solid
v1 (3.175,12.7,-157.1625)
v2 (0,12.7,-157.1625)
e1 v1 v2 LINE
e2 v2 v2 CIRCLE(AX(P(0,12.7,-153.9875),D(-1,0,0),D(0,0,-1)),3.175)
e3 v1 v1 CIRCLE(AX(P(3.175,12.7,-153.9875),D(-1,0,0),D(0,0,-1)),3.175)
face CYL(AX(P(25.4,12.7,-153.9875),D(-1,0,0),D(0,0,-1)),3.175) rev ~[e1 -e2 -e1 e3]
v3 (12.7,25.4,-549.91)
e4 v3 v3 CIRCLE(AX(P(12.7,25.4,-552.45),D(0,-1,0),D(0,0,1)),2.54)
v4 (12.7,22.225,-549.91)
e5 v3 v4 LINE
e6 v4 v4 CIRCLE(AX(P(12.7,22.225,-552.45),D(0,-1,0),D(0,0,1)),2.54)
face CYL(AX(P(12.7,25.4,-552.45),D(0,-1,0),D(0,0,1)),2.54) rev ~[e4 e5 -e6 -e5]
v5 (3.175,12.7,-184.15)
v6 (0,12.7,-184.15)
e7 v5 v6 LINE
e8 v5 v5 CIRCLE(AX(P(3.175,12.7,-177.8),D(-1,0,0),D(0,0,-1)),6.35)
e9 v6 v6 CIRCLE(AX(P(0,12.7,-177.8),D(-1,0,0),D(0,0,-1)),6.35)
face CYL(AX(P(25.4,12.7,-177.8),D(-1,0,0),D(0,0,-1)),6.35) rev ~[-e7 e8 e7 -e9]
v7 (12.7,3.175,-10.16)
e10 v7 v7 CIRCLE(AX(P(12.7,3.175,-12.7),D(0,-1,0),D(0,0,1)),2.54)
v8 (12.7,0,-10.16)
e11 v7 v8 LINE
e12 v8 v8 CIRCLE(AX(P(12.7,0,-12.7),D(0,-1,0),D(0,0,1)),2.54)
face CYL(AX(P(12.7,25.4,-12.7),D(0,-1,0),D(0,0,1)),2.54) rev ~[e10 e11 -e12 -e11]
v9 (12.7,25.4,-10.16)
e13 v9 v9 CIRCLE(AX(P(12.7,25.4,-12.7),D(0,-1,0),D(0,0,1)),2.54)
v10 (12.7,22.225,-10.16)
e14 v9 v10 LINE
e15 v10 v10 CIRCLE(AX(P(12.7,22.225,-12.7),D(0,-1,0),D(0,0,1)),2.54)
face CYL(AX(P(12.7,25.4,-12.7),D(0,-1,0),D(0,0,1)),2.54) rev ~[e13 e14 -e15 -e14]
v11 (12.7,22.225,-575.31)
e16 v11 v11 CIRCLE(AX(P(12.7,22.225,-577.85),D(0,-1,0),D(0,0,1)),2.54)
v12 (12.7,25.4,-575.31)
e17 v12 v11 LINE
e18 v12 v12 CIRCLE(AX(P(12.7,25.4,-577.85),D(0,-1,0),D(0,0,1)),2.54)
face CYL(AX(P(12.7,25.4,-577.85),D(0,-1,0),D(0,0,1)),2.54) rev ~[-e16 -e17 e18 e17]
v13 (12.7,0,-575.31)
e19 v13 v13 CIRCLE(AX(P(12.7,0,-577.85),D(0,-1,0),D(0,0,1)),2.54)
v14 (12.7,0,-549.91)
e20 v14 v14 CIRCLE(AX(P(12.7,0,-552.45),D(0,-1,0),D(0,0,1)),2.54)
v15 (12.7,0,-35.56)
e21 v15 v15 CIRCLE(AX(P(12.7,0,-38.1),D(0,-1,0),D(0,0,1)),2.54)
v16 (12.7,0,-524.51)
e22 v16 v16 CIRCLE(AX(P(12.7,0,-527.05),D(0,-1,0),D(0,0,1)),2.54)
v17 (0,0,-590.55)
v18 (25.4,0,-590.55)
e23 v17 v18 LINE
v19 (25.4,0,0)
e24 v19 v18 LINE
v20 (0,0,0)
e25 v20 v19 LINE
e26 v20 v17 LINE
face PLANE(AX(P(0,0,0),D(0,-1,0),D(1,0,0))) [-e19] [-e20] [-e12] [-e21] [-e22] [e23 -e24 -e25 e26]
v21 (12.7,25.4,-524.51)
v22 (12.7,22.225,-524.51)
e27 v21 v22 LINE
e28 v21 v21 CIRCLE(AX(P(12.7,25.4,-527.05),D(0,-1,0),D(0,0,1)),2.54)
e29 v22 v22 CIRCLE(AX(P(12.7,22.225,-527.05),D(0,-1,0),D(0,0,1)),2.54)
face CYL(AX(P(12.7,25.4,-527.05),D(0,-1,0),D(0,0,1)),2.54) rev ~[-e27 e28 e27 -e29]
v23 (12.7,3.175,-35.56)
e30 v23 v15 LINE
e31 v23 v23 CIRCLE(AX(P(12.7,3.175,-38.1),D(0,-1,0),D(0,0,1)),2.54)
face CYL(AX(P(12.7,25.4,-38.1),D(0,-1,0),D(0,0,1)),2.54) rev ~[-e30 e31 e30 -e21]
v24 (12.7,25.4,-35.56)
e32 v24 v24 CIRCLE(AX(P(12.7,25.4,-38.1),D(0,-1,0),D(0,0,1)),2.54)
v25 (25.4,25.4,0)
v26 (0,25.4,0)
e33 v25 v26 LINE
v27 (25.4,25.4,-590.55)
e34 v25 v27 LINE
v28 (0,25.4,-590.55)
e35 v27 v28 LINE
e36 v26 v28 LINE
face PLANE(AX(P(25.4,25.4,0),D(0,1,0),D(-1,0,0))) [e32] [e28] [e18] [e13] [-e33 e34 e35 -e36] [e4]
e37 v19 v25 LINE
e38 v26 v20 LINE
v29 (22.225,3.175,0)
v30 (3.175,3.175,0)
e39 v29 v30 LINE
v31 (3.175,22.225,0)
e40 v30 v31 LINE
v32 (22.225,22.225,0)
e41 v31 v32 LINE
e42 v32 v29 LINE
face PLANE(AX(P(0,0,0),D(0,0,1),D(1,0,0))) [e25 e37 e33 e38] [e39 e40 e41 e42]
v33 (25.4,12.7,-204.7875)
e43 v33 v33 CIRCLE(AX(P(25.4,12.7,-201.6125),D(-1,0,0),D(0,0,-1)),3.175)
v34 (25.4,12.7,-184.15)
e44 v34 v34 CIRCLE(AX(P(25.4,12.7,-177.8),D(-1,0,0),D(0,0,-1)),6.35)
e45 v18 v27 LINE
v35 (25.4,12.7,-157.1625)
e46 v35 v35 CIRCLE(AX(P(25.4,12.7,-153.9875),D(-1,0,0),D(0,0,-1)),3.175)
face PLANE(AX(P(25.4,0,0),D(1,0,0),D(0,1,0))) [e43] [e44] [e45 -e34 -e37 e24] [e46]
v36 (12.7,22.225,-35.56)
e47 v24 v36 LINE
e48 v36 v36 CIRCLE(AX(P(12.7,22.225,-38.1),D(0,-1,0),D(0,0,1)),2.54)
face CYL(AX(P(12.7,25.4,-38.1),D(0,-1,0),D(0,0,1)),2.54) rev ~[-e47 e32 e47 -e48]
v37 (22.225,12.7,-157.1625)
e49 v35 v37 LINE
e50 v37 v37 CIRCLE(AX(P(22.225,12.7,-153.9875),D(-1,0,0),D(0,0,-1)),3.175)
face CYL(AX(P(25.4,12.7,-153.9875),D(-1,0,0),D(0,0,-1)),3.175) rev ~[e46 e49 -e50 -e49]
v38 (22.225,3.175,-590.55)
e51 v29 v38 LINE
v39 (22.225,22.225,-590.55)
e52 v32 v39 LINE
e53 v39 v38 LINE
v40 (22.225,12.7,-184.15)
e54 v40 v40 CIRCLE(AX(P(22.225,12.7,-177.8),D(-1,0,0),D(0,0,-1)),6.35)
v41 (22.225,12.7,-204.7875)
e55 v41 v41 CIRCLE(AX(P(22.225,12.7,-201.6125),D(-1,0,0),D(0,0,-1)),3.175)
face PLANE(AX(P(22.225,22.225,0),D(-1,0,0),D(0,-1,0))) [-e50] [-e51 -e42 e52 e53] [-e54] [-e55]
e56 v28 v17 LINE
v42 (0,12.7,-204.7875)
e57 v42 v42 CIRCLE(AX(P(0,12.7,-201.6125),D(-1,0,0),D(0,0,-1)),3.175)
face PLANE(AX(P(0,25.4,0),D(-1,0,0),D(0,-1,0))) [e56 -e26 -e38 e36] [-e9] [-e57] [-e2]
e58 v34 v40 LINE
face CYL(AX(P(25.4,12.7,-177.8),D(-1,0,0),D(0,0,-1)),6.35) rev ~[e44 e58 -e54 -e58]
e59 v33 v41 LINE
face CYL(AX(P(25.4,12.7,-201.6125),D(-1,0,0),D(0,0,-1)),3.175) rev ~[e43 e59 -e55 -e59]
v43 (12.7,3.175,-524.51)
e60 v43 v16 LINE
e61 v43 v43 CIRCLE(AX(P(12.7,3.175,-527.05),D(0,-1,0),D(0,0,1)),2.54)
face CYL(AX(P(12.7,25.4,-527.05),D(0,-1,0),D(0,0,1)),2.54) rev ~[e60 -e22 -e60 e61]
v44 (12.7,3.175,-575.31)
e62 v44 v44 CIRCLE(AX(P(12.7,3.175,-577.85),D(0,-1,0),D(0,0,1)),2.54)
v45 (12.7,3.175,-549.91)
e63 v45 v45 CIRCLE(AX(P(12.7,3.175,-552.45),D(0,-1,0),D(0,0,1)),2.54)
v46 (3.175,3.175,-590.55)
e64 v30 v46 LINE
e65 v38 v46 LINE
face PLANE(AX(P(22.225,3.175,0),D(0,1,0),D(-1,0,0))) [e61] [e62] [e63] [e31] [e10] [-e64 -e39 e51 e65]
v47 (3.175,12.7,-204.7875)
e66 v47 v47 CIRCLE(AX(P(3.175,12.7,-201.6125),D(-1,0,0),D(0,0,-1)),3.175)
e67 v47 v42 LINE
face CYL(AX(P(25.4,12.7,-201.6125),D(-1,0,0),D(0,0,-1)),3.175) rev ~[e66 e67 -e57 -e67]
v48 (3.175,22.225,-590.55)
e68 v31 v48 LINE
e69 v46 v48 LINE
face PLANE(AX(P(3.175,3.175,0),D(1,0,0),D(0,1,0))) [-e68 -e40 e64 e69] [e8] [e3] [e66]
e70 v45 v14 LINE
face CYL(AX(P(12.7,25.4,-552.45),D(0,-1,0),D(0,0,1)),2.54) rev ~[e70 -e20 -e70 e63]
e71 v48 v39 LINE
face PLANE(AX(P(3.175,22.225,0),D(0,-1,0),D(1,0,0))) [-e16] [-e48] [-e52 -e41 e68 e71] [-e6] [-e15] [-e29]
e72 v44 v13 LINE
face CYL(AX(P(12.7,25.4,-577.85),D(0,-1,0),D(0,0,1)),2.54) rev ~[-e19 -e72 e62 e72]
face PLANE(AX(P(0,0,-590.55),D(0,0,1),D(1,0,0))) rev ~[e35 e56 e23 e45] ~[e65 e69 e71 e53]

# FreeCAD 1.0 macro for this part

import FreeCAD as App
import Part
import Sketcher

V = App.Vector
Q = App.Units.Quantity

doc = App.newDocument("Part")
body = doc.addObject("PartDesign::Body", "Body")

# Sketch on XY plane
sketch1 = body.newObject("Sketcher::SketchObject", "Sketch")
sketch1.AttachmentSupport = (doc.getObject("XY_Plane"), [""])
sketch1.MapMode = "FlatFace"
sketch1.addGeometry([
    Part.LineSegment(V(0, 25.4, 0), V(0, 0, 0)),  # 0
    Part.LineSegment(V(0, 0, 0), V(25.4, 0, 0)),  # 1
    Part.LineSegment(V(25.4, 0, 0), V(25.4, 25.4, 0)),  # 2
    Part.LineSegment(V(25.4, 25.4, 0), V(0, 25.4, 0)),  # 3
    Part.LineSegment(V(3.175, 3.175, 0), V(3.175, 22.225, 0)),  # 4
    Part.LineSegment(V(3.175, 22.225, 0), V(22.225, 22.225, 0)),  # 5
    Part.LineSegment(V(22.225, 22.225, 0), V(22.225, 3.175, 0)),  # 6
    Part.LineSegment(V(22.225, 3.175, 0), V(3.175, 3.175, 0)),  # 7
], False)
sketch1.addConstraint([
    Sketcher.Constraint("Coincident", 0, 2, 1, 1),
    Sketcher.Constraint("Coincident", 1, 2, 2, 1),
    Sketcher.Constraint("Coincident", 2, 2, 3, 1),
    Sketcher.Constraint("Coincident", 3, 2, 0, 1),
    Sketcher.Constraint("Coincident", 4, 2, 5, 1),
    Sketcher.Constraint("Coincident", 5, 2, 6, 1),
    Sketcher.Constraint("Coincident", 6, 2, 7, 1),
    Sketcher.Constraint("Coincident", 7, 2, 4, 1),
    Sketcher.Constraint("Vertical", 0),
    Sketcher.Constraint("Horizontal", 1),
    Sketcher.Constraint("Vertical", 2),
    Sketcher.Constraint("Horizontal", 3),
    Sketcher.Constraint("Vertical", 4),
    Sketcher.Constraint("Horizontal", 5),
    Sketcher.Constraint("Vertical", 6),
    Sketcher.Constraint("Horizontal", 7),
    Sketcher.Constraint("Coincident", 0, 2, -1, 1),
    Sketcher.Constraint("Equal", 3, 0),
    Sketcher.Constraint("Equal", 7, 4),
    Sketcher.Constraint("DistanceX", 1, 1, 1, 2, Q("1 in")),
    Sketcher.Constraint("DistanceX", -1, 1, 4, 2, Q("0.125 in")),
    Sketcher.Constraint("DistanceY", -1, 1, 6, 2, Q("0.125 in")),
    Sketcher.Constraint("DistanceY", 4, 2, 3, 2, Q("0.125 in")),
])
pad1 = body.newObject("PartDesign::Pad", "Pad")
pad1.Profile = sketch1
pad1.Length = Q("23.25 in")
pad1.Reversed = True

# Sketch on XZ plane
sketch2 = body.newObject("Sketcher::SketchObject", "Sketch001")
sketch2.AttachmentSupport = (doc.getObject("XZ_Plane"), [""])
sketch2.MapMode = "FlatFace"
sketch2.AttachmentOffset = App.Placement(V(0, 0, -1 * 25.4), App.Rotation())
sketch2.addGeometry([
    Part.Circle(V(12.7, -12.7, 0), V(0, 0, 1), 2.54),  # 0
    Part.Circle(V(12.7, -38.1, 0), V(0, 0, 1), 2.54),  # 1
    Part.Circle(V(12.7, -577.85, 0), V(0, 0, 1), 2.54),  # 2
    Part.Circle(V(12.7, -552.45, 0), V(0, 0, 1), 2.54),  # 3
    Part.Circle(V(12.7, -527.05, 0), V(0, 0, 1), 2.54),  # 4
], False)
sketch2.addConstraint([
    Sketcher.Constraint("Equal", 0, 1),
    Sketcher.Constraint("Equal", 1, 2),
    Sketcher.Constraint("Equal", 2, 3),
    Sketcher.Constraint("Equal", 3, 4),
    Sketcher.Constraint("Vertical", 0, 3, 1, 3),
    Sketcher.Constraint("Vertical", 1, 3, 2, 3),
    Sketcher.Constraint("Vertical", 2, 3, 3, 3),
    Sketcher.Constraint("Vertical", 3, 3, 4, 3),
    Sketcher.Constraint("Diameter", 0, Q("0.2 in")),
    Sketcher.Constraint("DistanceY", 1, 3, 0, 3, Q("1 in")),
    Sketcher.Constraint("DistanceY", 2, 3, 3, 3, Q("1 in")),
    Sketcher.Constraint("DistanceY", 3, 3, 4, 3, Q("1 in")),
    Sketcher.Constraint("DistanceX", -1, 1, 0, 3, Q("0.5 in")),
    Sketcher.Constraint("DistanceY", 0, 3, -1, 1, Q("0.5 in")),
    Sketcher.Constraint("DistanceY", 2, 3, -1, 1, Q("22.75 in")),
])
doc.recompute()
hole = body.newObject("PartDesign::Hole", "Hole")
hole.Profile = sketch2
hole.ThreadType = "None"
hole.Diameter = Q("0.2 in")
hole.DepthType = "Dimension"
hole.Depth = Q("1 in")
hole.DrillPoint = "Angled"
hole.DrillPointAngle = 118
hole.Reversed = True

# Sketch on YZ plane
sketch3 = body.newObject("Sketcher::SketchObject", "Sketch002")
sketch3.AttachmentSupport = (doc.getObject("YZ_Plane"), [""])
sketch3.MapMode = "FlatFace"
sketch3.AttachmentOffset = App.Placement(V(0, 0, 1 * 25.4), App.Rotation())
sketch3.addGeometry([
    Part.Circle(V(12.7, -153.9875, 0), V(0, 0, 1), 3.175),
    Part.Circle(V(12.7, -201.6125, 0), V(0, 0, 1), 3.175),
], False)
sketch3.addConstraint([
    Sketcher.Constraint("Equal", 0, 1),
    Sketcher.Constraint("Vertical", 0, 3, 1, 3),
    Sketcher.Constraint("Diameter", 0, Q("0.25 in")),
    Sketcher.Constraint("DistanceX", -1, 1, 0, 3, Q("0.5 in")),
    Sketcher.Constraint("DistanceY", 0, 3, -1, 1, Q("6.0625 in")),
    Sketcher.Constraint("DistanceY", 1, 3, -1, 1, Q("7.9375 in")),
])
doc.recompute()
hole2 = body.newObject("PartDesign::Hole", "Hole001")
hole2.Profile = sketch3
hole2.ThreadType = "None"
hole2.Diameter = Q("0.25 in")
hole2.DepthType = "Dimension"
hole2.Depth = Q("1 in")
hole2.DrillPoint = "Angled"
hole2.DrillPointAngle = 118

# Sketch on YZ plane
sketch4 = body.newObject("Sketcher::SketchObject", "Sketch003")
sketch4.AttachmentSupport = (doc.getObject("YZ_Plane"), [""])
sketch4.MapMode = "FlatFace"
sketch4.AttachmentOffset = App.Placement(V(0, 0, 1 * 25.4), App.Rotation())
sketch4.addGeometry(Part.Circle(V(12.7, -177.8, 0), V(0, 0, 1), 6.35), False)
sketch4.addConstraint([
    Sketcher.Constraint("Diameter", 0, Q("0.5 in")),
    Sketcher.Constraint("DistanceY", 0, 3, -1, 1, Q("7 in")),
    Sketcher.Constraint("DistanceX", -1, 1, 0, 3, Q("0.5 in")),
])
doc.recompute()
hole3 = body.newObject("PartDesign::Hole", "Hole002")
hole3.Profile = sketch4
hole3.ThreadType = "None"
hole3.Diameter = Q("0.5 in")
hole3.DepthType = "Dimension"
hole3.Depth = Q("1 in")
hole3.DrillPoint = "Angled"
hole3.DrillPointAngle = 118

doc.recompute()
